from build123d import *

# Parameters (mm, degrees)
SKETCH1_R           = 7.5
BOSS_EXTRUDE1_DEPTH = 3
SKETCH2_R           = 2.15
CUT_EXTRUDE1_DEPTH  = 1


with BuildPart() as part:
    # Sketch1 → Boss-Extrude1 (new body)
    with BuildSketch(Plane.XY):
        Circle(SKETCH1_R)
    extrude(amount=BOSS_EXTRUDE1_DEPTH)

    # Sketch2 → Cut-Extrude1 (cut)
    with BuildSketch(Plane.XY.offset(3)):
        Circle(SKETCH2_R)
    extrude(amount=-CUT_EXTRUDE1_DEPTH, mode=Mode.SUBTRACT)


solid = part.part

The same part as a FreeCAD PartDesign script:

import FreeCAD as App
import Part
import Sketcher

V = App.Vector
Q = App.Units.Quantity

doc = App.newDocument("Part")
body = doc.addObject("PartDesign::Body", "Body")

sketch1 = body.newObject("Sketcher::SketchObject", "Sketch")
sketch1.AttachmentSupport = (doc.getObject("XY_Plane"), [""])
sketch1.MapMode = "FlatFace"
sketch1.addGeometry(Part.Circle(V(0, 0, 0), V(0, 0, 1), 7.5), False)
sketch1.addConstraint(Sketcher.Constraint("Coincident", 0, 3, -1, 1))
sketch1.addConstraint(Sketcher.Constraint("Diameter", 0, Q("15 mm")))
pad1 = body.newObject("PartDesign::Pad", "Pad")
pad1.Profile = sketch1
pad1.Length = 3

sketch2 = body.newObject("Sketcher::SketchObject", "Sketch001")
sketch2.AttachmentSupport = (doc.getObject("XY_Plane"), [""])
sketch2.MapMode = "FlatFace"
sketch2.AttachmentOffset = App.Placement(V(0, 0, 3), App.Rotation())
sketch2.addGeometry(Part.Circle(V(0, 0, 0), V(0, 0, 1), 2.15), False)
sketch2.addConstraint(Sketcher.Constraint("Coincident", 0, 3, -1, 1))
sketch2.addConstraint(Sketcher.Constraint("Diameter", 0, Q("4.3 mm")))
pocket1 = body.newObject("PartDesign::Pocket", "Pocket")
pocket1.Profile = sketch2
pocket1.Length = 1

doc.recompute()
